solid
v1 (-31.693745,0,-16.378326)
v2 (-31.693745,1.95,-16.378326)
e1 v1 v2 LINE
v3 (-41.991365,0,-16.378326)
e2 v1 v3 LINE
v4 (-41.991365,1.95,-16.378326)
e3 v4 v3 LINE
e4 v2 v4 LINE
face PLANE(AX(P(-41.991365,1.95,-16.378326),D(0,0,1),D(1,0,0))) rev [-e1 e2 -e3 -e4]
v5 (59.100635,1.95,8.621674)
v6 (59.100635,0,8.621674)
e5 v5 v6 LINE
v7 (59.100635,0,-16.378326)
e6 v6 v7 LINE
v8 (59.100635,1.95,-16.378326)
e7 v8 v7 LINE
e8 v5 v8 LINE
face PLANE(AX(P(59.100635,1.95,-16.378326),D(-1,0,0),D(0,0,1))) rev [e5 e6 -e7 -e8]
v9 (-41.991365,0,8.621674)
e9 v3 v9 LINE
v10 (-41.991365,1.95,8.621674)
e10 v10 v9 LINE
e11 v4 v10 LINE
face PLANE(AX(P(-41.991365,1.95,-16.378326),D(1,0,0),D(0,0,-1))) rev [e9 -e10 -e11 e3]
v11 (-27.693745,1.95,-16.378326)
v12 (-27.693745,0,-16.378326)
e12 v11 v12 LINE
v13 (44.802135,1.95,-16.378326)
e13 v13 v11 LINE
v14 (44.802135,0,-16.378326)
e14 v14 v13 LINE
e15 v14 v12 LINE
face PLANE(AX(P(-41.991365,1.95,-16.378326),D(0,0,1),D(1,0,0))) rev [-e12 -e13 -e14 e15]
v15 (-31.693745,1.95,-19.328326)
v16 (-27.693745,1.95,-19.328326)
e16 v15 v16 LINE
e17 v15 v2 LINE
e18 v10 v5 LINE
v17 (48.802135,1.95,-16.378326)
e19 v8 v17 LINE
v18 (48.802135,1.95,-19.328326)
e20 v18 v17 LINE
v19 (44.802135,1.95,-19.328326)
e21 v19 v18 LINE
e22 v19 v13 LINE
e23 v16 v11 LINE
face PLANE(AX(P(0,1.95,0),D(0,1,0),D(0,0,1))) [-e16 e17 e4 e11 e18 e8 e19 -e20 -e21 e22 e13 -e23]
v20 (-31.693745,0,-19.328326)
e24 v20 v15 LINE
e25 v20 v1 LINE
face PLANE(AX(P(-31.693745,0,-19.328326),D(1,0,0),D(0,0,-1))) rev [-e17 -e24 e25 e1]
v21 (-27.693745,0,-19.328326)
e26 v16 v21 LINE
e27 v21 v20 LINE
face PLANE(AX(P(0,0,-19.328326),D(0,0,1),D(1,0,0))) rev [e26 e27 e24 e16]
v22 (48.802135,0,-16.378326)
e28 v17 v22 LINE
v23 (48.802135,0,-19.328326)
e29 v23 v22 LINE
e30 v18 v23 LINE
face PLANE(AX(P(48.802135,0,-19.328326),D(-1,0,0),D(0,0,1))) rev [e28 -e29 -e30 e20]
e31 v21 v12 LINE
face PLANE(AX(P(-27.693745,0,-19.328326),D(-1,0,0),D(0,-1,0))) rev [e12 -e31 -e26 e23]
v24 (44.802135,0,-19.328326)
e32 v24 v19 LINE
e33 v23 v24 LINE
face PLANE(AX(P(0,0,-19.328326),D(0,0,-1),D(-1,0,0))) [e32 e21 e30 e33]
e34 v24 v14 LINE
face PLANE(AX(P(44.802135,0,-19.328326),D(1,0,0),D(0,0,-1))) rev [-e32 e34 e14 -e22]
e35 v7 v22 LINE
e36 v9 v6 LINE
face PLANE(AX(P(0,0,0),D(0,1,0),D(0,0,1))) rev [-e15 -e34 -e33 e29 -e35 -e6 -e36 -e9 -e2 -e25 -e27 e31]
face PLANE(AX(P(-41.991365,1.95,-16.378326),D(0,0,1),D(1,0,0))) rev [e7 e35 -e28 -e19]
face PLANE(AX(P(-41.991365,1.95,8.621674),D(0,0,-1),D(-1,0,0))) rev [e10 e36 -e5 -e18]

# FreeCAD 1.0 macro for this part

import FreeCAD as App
import Part
import Sketcher
from FreeCAD import Vector

doc = App.newDocument("Part")
body = doc.addObject("PartDesign::Body", "Body")

sketch1 = body.newObject("Sketcher::SketchObject", "Sketch")
sketch1.AttachmentSupport = (doc.getObject("XZ_Plane"), [""])
sketch1.MapMode = "FlatFace"
sketch1.addGeometry([
    Part.LineSegment(Vector(-42, -16, 0), Vector(-42, 9, 0)),
    Part.LineSegment(Vector(-42, 9, 0), Vector(59, 9, 0)),
    Part.LineSegment(Vector(59, 9, 0), Vector(59, -16, 0)),
    Part.LineSegment(Vector(59, -16, 0), Vector(-42, -16, 0)),
], False)
sketch1.addConstraint([
    Sketcher.Constraint("Coincident", 0, 2, 1, 1),
    Sketcher.Constraint("Coincident", 1, 2, 2, 1),
    Sketcher.Constraint("Coincident", 2, 2, 3, 1),
    Sketcher.Constraint("Coincident", 3, 2, 0, 1),
    Sketcher.Constraint("Vertical", 0),
    Sketcher.Constraint("Horizontal", 1),
    Sketcher.Constraint("Vertical", 2),
    Sketcher.Constraint("Horizontal", 3),
    Sketcher.Constraint("DistanceY", 0, 1, 0, 2, 25.0),
    Sketcher.Constraint("DistanceX", 1, 1, 1, 2, 101.092),
    Sketcher.Constraint("DistanceX", 0, 2, -1, 1, 41.991365),
    Sketcher.Constraint("DistanceY", -1, 1, 0, 2, 8.621674),
])
pad1 = body.newObject("PartDesign::Pad", "Pad")
pad1.Profile = sketch1
pad1.Length = 1.95
pad1.Reversed = True

sketch2 = body.newObject("Sketcher::SketchObject", "Sketch001")
sketch2.AttachmentSupport = (doc.getObject("XY_Plane"), [""])
sketch2.MapMode = "FlatFace"
sketch2.AttachmentOffset = App.Placement(Vector(0, 0, -16.378326), App.Rotation())
sketch2.addGeometry([
    Part.LineSegment(Vector(-27.7, 1.9, 0), Vector(-27.7, 0, 0)),
    Part.LineSegment(Vector(-27.7, 0, 0), Vector(-31.7, 0, 0)),
    Part.LineSegment(Vector(-31.7, 0, 0), Vector(-31.7, 1.9, 0)),
    Part.LineSegment(Vector(-31.7, 1.9, 0), Vector(-27.7, 1.9, 0)),
    Part.LineSegment(Vector(48.8, 1.9, 0), Vector(48.8, 0, 0)),
    Part.LineSegment(Vector(48.8, 0, 0), Vector(44.8, 0, 0)),
    Part.LineSegment(Vector(44.8, 0, 0), Vector(44.8, 1.9, 0)),
    Part.LineSegment(Vector(44.8, 1.9, 0), Vector(48.8, 1.9, 0)),
], False)
sketch2.addConstraint([
    Sketcher.Constraint("Coincident", 0, 2, 1, 1),
    Sketcher.Constraint("Coincident", 1, 2, 2, 1),
    Sketcher.Constraint("Coincident", 2, 2, 3, 1),
    Sketcher.Constraint("Coincident", 3, 2, 0, 1),
    Sketcher.Constraint("Coincident", 4, 2, 5, 1),
    Sketcher.Constraint("Coincident", 5, 2, 6, 1),
    Sketcher.Constraint("Coincident", 6, 2, 7, 1),
    Sketcher.Constraint("Coincident", 7, 2, 4, 1),
    Sketcher.Constraint("Vertical", 0),
    Sketcher.Constraint("Horizontal", 1),
    Sketcher.Constraint("Vertical", 2),
    Sketcher.Constraint("Horizontal", 3),
    Sketcher.Constraint("Vertical", 4),
    Sketcher.Constraint("Horizontal", 5),
    Sketcher.Constraint("Vertical", 6),
    Sketcher.Constraint("Horizontal", 7),
    Sketcher.Constraint("PointOnObject", 0, 2, -1),
    Sketcher.Constraint("PointOnObject", 4, 2, -1),
    Sketcher.Constraint("Horizontal", 3, 2, 6, 2),
    Sketcher.Constraint("Equal", 3, 5),
    Sketcher.Constraint("DistanceX", 1, 2, 1, 1, 4.0),
    Sketcher.Constraint("DistanceY", 0, 2, 0, 1, 1.95),
    Sketcher.Constraint("DistanceX", 0, 2, 4, 2, 76.495879),
    Sketcher.Constraint("DistanceX", 0, 2, -1, 1, 27.693745),
])
pad2 = body.newObject("PartDesign::Pad", "Pad001")
pad2.Profile = sketch2
pad2.Length = 2.95
pad2.Reversed = True

doc.recompute()
